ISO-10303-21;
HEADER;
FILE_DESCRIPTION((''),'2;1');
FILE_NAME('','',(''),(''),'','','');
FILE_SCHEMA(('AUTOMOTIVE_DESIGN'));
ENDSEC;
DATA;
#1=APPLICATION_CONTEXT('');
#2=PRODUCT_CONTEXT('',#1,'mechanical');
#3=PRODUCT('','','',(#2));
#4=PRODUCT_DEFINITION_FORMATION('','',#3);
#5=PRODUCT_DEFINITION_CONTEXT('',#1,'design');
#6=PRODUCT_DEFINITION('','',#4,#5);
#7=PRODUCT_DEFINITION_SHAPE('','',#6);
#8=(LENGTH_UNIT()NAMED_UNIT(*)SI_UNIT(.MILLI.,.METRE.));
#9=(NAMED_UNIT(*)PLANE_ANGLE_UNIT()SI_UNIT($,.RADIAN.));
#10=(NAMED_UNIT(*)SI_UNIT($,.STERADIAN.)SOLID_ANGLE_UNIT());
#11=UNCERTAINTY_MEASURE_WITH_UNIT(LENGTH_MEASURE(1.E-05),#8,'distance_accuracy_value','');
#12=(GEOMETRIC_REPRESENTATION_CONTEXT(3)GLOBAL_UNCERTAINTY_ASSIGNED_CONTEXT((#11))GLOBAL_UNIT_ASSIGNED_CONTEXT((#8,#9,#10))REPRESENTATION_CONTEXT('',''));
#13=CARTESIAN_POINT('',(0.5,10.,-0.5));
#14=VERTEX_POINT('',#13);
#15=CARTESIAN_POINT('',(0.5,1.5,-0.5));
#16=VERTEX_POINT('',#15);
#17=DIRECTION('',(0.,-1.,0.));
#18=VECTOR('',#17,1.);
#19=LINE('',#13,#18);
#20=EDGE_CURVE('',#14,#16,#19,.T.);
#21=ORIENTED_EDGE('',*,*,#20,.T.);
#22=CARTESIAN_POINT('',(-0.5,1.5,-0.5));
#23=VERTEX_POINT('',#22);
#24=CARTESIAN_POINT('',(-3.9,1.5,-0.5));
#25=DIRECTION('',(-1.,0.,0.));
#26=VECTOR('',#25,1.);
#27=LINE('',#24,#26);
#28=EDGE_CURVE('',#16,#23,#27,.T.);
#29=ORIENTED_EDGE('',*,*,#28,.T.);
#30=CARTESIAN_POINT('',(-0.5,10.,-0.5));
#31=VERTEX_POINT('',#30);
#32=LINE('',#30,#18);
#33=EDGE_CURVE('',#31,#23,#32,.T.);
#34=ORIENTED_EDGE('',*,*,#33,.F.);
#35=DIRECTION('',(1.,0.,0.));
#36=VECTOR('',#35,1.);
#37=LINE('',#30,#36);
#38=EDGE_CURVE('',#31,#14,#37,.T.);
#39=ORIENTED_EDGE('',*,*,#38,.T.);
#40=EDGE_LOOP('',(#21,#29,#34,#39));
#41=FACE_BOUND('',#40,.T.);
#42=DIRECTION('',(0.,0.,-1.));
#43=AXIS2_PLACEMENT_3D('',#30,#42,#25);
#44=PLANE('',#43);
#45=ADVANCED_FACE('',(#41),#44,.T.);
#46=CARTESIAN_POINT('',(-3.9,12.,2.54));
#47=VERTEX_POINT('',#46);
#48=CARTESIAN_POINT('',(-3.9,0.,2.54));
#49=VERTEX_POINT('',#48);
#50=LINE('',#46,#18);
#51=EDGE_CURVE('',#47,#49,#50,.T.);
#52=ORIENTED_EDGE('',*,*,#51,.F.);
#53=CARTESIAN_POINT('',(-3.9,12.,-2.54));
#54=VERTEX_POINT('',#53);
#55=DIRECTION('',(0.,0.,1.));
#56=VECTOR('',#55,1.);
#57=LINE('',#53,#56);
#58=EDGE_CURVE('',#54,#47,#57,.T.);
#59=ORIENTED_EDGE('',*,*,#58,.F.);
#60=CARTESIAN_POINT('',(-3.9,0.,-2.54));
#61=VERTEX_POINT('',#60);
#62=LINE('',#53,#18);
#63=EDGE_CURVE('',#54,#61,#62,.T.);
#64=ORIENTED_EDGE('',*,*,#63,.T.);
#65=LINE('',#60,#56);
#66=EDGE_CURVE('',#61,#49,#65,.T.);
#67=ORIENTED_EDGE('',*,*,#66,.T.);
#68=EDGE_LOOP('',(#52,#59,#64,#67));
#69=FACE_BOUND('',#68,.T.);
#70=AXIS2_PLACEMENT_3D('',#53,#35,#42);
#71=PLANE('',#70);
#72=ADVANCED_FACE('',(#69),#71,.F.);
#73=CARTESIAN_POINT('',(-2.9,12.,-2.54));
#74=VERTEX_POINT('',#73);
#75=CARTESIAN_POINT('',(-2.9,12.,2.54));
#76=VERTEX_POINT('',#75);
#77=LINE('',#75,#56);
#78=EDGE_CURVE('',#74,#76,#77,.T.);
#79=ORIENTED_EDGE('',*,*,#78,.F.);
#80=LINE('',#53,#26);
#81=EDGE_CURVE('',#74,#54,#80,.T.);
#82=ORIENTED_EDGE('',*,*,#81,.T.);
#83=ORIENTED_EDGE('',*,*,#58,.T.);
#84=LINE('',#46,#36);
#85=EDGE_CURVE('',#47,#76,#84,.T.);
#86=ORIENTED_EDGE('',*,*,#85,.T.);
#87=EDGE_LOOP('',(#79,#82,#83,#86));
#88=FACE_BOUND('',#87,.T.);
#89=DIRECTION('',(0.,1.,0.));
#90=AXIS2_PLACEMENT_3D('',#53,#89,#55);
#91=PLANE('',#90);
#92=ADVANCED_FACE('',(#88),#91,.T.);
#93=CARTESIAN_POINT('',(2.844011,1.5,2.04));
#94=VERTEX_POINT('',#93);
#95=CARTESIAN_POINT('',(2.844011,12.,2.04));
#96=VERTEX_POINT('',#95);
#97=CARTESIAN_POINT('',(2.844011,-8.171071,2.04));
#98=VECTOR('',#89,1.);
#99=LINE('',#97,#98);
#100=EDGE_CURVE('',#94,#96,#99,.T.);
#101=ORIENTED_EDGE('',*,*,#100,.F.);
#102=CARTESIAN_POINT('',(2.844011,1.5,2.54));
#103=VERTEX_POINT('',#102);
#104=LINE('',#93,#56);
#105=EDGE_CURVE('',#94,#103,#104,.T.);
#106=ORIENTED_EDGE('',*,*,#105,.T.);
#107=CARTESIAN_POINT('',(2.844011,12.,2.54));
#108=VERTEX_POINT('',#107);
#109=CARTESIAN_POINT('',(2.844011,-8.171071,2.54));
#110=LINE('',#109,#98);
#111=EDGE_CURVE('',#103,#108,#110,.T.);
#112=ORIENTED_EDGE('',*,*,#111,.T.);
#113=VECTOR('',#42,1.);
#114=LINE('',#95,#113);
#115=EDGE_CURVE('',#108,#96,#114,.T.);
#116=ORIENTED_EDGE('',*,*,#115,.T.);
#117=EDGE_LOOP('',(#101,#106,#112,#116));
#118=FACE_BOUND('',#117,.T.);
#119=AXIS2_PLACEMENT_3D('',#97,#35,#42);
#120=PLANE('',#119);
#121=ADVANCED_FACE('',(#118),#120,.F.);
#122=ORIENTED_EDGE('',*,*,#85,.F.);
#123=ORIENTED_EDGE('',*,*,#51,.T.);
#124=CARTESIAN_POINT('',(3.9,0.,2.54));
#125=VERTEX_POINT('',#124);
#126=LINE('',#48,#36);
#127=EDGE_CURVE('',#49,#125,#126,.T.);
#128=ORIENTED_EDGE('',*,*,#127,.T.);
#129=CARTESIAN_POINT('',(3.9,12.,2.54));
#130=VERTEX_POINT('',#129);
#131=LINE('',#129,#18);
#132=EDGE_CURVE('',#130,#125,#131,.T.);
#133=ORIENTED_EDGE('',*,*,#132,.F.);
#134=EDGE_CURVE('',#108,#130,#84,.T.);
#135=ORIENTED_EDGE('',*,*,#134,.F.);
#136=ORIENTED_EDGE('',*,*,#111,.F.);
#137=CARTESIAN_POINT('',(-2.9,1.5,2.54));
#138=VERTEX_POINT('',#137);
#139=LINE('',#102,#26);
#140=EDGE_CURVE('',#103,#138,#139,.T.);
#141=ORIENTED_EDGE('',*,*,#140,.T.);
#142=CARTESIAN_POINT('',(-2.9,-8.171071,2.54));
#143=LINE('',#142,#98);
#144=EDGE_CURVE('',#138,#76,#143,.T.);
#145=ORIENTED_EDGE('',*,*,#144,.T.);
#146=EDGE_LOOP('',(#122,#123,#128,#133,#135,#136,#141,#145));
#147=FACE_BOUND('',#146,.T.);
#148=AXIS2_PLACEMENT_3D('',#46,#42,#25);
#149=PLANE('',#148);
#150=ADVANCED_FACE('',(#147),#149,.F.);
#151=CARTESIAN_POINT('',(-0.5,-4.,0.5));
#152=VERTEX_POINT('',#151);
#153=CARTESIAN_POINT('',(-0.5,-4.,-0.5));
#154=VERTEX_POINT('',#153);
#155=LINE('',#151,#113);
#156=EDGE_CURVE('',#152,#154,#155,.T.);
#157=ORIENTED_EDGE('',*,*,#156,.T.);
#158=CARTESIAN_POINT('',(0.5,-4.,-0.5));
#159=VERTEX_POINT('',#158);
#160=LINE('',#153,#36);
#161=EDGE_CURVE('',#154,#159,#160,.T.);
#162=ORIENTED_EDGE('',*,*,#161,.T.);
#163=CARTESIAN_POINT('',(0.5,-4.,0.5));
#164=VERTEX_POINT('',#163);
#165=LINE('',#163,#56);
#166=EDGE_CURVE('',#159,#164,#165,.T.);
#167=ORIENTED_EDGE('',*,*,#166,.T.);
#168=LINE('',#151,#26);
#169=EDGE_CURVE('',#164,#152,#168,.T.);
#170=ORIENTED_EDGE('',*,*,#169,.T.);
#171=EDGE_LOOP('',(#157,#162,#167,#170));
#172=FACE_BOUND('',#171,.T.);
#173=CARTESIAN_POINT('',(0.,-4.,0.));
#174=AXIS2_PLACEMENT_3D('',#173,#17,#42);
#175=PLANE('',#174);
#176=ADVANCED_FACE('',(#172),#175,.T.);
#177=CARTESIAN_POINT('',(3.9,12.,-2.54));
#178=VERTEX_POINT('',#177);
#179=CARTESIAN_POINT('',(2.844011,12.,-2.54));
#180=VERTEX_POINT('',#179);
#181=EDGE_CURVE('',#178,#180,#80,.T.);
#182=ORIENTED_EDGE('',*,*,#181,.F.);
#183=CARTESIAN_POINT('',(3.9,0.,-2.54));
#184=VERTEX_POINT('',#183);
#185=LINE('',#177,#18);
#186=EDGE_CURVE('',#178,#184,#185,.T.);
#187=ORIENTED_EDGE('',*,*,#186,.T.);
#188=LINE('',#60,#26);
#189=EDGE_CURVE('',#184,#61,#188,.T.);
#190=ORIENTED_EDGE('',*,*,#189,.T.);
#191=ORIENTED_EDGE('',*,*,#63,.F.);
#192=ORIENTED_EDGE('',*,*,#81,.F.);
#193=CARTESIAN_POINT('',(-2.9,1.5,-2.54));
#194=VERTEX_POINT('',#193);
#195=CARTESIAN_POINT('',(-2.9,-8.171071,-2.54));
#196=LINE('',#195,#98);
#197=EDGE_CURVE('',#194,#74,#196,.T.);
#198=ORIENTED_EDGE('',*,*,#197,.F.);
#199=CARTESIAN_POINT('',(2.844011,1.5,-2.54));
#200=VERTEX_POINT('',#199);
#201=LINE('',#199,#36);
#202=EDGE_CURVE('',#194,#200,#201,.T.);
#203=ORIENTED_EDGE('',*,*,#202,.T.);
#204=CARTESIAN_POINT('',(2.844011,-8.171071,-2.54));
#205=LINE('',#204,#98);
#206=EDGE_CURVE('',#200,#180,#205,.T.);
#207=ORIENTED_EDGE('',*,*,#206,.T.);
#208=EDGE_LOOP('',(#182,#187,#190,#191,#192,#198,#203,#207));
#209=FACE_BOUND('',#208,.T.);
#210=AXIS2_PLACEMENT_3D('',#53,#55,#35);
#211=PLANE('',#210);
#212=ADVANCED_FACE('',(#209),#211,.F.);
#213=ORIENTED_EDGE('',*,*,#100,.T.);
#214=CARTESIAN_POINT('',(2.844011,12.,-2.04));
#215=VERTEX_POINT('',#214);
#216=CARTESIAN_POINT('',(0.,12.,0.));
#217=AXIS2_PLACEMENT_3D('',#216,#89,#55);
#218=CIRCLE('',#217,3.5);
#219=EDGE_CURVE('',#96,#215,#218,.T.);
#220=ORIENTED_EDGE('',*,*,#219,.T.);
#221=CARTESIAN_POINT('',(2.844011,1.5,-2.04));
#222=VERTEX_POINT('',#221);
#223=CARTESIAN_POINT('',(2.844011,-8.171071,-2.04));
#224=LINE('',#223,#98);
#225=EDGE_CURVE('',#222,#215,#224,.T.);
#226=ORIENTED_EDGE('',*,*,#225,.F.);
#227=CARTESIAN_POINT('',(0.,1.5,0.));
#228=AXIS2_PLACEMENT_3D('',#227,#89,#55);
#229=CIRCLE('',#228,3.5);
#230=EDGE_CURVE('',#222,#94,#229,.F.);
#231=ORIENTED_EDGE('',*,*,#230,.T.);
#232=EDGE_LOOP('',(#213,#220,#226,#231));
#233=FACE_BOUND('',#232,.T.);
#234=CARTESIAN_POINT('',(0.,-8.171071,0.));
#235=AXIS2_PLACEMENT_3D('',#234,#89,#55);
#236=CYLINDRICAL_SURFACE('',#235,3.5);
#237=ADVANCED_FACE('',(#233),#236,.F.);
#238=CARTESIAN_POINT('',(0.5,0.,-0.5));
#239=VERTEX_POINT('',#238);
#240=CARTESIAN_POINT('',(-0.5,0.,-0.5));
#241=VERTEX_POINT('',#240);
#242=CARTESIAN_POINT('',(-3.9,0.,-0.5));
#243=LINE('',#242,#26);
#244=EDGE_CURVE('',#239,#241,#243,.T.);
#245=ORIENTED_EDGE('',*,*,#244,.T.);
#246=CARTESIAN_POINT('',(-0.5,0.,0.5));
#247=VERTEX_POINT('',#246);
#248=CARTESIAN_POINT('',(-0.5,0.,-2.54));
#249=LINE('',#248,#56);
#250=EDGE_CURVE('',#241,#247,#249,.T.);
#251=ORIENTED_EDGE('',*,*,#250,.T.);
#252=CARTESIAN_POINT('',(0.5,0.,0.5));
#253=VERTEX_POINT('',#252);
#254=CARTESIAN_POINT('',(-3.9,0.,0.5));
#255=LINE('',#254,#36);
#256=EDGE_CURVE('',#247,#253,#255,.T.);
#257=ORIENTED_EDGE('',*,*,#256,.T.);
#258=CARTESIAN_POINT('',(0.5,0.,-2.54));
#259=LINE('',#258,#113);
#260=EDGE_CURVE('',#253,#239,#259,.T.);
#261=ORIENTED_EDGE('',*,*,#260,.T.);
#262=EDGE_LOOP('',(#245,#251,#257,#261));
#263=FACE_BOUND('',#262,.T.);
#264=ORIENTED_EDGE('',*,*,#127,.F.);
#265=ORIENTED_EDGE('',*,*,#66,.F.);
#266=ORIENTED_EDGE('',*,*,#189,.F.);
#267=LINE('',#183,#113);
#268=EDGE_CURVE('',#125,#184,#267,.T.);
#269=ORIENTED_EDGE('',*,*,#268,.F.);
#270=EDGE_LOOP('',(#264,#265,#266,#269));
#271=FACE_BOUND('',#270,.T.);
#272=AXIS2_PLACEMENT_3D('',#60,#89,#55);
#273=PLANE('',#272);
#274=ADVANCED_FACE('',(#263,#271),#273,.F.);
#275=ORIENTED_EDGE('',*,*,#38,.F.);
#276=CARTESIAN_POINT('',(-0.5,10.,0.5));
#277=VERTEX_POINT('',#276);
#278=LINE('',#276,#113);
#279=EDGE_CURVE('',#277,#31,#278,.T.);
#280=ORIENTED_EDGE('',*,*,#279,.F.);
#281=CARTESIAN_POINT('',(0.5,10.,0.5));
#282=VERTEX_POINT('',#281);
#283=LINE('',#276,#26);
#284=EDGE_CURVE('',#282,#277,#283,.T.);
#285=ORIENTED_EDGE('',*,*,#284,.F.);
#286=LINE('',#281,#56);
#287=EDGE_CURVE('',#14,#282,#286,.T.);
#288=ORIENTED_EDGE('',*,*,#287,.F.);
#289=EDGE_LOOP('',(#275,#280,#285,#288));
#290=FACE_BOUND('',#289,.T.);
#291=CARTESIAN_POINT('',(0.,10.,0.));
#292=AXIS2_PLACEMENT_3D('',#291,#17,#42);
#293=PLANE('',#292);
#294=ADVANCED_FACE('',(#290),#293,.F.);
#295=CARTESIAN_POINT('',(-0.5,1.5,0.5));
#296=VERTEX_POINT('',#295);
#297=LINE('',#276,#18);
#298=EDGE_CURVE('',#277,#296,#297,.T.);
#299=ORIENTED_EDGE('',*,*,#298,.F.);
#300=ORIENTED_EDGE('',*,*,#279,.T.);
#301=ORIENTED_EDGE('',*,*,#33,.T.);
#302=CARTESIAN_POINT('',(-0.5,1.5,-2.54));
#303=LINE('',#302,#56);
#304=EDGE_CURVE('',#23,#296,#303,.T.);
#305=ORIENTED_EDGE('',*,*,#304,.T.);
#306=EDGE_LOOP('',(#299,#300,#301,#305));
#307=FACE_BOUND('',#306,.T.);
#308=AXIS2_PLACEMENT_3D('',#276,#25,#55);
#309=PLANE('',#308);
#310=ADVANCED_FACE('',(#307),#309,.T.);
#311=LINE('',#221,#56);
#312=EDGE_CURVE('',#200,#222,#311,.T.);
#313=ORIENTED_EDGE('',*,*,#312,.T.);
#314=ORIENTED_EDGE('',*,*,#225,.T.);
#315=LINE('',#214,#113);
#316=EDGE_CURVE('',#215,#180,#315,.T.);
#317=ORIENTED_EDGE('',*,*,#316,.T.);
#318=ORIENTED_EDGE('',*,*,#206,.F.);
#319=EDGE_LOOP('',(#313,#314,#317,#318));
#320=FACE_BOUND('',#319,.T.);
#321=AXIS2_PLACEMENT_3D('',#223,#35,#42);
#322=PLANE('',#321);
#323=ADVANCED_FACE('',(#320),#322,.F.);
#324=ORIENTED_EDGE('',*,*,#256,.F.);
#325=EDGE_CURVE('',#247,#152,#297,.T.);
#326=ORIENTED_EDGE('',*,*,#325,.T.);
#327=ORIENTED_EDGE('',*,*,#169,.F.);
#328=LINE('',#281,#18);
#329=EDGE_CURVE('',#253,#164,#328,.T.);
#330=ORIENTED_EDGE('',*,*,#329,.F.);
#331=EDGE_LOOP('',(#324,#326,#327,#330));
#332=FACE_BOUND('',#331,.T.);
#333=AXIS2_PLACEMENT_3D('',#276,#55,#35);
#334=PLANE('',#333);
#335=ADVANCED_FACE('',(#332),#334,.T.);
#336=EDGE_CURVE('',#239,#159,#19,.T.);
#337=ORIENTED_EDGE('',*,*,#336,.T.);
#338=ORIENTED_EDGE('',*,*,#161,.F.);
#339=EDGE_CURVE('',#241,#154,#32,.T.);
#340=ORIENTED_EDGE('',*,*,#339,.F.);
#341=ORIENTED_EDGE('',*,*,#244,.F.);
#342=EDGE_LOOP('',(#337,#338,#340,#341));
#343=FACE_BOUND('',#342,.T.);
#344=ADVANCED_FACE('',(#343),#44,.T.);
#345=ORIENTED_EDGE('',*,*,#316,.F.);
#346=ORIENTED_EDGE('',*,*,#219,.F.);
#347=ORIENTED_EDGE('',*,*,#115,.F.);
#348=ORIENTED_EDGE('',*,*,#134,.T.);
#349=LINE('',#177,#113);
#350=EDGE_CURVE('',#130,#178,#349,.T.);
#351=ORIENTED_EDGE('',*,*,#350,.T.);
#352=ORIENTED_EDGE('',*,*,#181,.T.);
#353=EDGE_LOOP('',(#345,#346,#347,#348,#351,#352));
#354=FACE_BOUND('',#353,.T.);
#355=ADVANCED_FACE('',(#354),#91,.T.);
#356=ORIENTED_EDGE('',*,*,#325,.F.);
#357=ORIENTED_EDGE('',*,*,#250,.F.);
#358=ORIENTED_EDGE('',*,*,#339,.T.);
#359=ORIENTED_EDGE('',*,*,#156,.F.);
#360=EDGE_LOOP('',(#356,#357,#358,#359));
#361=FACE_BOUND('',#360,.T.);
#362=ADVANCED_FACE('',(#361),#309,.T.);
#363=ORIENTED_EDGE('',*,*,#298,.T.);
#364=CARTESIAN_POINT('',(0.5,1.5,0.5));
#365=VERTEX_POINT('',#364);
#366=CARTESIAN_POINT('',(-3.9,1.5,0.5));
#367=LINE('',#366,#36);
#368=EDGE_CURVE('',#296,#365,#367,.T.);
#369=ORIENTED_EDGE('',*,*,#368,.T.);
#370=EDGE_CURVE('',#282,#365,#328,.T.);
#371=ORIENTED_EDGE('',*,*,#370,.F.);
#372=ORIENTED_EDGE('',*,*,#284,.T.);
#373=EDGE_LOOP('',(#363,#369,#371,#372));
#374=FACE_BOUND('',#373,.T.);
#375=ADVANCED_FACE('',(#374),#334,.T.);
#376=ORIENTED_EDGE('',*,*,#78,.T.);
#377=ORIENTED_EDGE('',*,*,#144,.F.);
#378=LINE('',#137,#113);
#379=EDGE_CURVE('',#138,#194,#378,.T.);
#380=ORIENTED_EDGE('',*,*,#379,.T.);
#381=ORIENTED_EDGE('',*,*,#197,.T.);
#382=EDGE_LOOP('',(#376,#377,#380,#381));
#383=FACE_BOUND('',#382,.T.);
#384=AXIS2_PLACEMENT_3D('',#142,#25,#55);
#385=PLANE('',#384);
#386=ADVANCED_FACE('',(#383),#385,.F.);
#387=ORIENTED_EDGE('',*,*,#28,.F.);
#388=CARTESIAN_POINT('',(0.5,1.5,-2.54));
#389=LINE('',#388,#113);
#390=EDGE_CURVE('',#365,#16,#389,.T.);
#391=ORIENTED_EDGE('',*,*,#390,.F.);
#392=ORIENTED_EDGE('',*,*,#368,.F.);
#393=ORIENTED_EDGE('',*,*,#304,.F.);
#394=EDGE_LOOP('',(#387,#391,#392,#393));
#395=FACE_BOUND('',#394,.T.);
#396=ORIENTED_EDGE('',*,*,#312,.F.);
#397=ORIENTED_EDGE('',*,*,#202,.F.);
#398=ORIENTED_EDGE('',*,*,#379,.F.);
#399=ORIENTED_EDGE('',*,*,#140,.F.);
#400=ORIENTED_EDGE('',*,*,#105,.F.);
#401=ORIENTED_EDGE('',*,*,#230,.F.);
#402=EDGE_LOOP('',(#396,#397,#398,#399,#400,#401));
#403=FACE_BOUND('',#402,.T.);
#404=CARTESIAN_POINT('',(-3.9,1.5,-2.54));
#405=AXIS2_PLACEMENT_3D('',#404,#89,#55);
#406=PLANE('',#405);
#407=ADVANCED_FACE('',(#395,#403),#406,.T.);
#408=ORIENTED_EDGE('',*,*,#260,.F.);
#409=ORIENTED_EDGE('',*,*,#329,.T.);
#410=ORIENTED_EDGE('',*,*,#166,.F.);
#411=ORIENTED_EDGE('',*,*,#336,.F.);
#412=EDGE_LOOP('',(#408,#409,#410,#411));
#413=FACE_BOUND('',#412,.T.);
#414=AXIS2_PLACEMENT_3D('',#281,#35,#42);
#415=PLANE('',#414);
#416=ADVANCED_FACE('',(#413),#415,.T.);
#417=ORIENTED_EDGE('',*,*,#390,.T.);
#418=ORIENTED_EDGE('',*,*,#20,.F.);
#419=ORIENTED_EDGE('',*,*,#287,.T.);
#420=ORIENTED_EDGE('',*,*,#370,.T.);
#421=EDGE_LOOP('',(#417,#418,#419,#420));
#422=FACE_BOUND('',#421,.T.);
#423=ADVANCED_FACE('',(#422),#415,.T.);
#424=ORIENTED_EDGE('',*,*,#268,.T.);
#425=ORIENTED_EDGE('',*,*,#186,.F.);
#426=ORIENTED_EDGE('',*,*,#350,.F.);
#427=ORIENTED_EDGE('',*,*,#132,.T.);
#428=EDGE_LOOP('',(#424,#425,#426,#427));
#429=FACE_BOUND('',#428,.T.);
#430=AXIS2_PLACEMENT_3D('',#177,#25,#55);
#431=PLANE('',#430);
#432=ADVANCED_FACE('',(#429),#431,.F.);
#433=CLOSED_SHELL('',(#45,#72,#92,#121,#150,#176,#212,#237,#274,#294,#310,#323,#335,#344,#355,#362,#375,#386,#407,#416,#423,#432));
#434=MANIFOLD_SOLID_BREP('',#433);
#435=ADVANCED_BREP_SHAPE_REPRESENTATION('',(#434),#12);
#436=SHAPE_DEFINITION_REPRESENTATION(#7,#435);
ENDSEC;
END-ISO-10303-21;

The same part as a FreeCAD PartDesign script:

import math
import FreeCAD as App
import Part
import Sketcher

V = App.Vector
Q = App.Units.Quantity

doc = App.newDocument("Part")
body = doc.addObject("PartDesign::Body", "Body")

# Sketch on XZ plane
sketch1 = body.newObject("Sketcher::SketchObject", "Sketch")
sketch1.AttachmentSupport = (doc.getObject("XZ_Plane"), [""])
sketch1.MapMode = "FlatFace"
sketch1.addGeometry([
    Part.LineSegment(V(-3.9, -2.54, 0), V(-3.9, 2.54, 0)),
    Part.LineSegment(V(-3.9, 2.54, 0), V(3.9, 2.54, 0)),
    Part.LineSegment(V(3.9, 2.54, 0), V(3.9, -2.54, 0)),
    Part.LineSegment(V(3.9, -2.54, 0), V(-3.9, -2.54, 0)),
], False)
sketch1.addConstraint([
    Sketcher.Constraint("Coincident", 0, 2, 1, 1),
    Sketcher.Constraint("Coincident", 1, 2, 2, 1),
    Sketcher.Constraint("Coincident", 2, 2, 3, 1),
    Sketcher.Constraint("Coincident", 3, 2, 0, 1),
    Sketcher.Constraint("Vertical", 0),
    Sketcher.Constraint("Horizontal", 1),
    Sketcher.Constraint("Vertical", 2),
    Sketcher.Constraint("Horizontal", 3),
    Sketcher.Constraint("Symmetric", 0, 2, 2, 2, -1, 1),
    Sketcher.Constraint("DistanceX", 1, 1, 1, 2, Q("7.8 mm")),
    Sketcher.Constraint("DistanceY", 0, 1, 0, 2, Q("5.08 mm")),
])
pad1 = body.newObject("PartDesign::Pad", "Pad")
pad1.Profile = sketch1
pad1.Length = 12
pad1.Reversed = True

# Sketch on XZ plane
sketch2 = body.newObject("Sketcher::SketchObject", "Sketch001")
sketch2.AttachmentSupport = (doc.getObject("XZ_Plane"), [""])
sketch2.MapMode = "FlatFace"
sketch2.AttachmentOffset = App.Placement(V(0, 0, -12), App.Rotation())
sketch2.addGeometry([
    Part.LineSegment(V(2.844011, 2.54, 0), V(2.844011, 2.04, 0)),  # 0
    Part.ArcOfCircle(Part.Circle(V(0, 0, 0), V(0, 0, 1), 3.5), math.radians(-35.651751), math.radians(35.651751)),  # 1
    Part.LineSegment(V(2.844011, -2.04, 0), V(2.844011, -2.54, 0)),  # 2
    Part.LineSegment(V(2.844011, -2.54, 0), V(-2.9, -2.54, 0)),  # 3
    Part.LineSegment(V(-2.9, -2.54, 0), V(-2.9, 2.54, 0)),  # 4
    Part.LineSegment(V(-2.9, 2.54, 0), V(2.844011, 2.54, 0)),  # 5
], False)
sketch2.addConstraint([
    Sketcher.Constraint("Coincident", 0, 2, 1, 2),
    Sketcher.Constraint("Coincident", 1, 1, 2, 1),
    Sketcher.Constraint("Coincident", 2, 2, 3, 1),
    Sketcher.Constraint("Coincident", 3, 2, 4, 1),
    Sketcher.Constraint("Coincident", 4, 2, 5, 1),
    Sketcher.Constraint("Coincident", 5, 2, 0, 1),
    Sketcher.Constraint("Vertical", 0),
    Sketcher.Constraint("Vertical", 2),
    Sketcher.Constraint("Horizontal", 3),
    Sketcher.Constraint("Vertical", 4),
    Sketcher.Constraint("Horizontal", 5),
    Sketcher.Constraint("Coincident", 1, 3, -1, 1),
    Sketcher.Constraint("Symmetric", 2, 2, 5, 2, -1),
    Sketcher.Constraint("Radius", 1, Q("3.5 mm")),
    Sketcher.Constraint("DistanceY", 0, 2, 0, 1, Q("0.5 mm")),
    Sketcher.Constraint("DistanceY", 4, 1, 4, 2, Q("5.08 mm")),
    Sketcher.Constraint("DistanceX", 3, 2, -1, 1, Q("2.9 mm")),
])
pocket1 = body.newObject("PartDesign::Pocket", "Pocket")
pocket1.Profile = sketch2
pocket1.Length = 10.5
pocket1.Reversed = True

# Sketch on XZ plane
sketch3 = body.newObject("Sketcher::SketchObject", "Sketch002")
sketch3.AttachmentSupport = (doc.getObject("XZ_Plane"), [""])
sketch3.MapMode = "FlatFace"
sketch3.addGeometry([
    Part.LineSegment(V(-0.5, 0.5, 0), V(-0.5, -0.5, 0)),
    Part.LineSegment(V(-0.5, -0.5, 0), V(0.5, -0.5, 0)),
    Part.LineSegment(V(0.5, -0.5, 0), V(0.5, 0.5, 0)),
    Part.LineSegment(V(0.5, 0.5, 0), V(-0.5, 0.5, 0)),
], False)
sketch3.addConstraint([
    Sketcher.Constraint("Coincident", 0, 2, 1, 1),
    Sketcher.Constraint("Coincident", 1, 2, 2, 1),
    Sketcher.Constraint("Coincident", 2, 2, 3, 1),
    Sketcher.Constraint("Coincident", 3, 2, 0, 1),
    Sketcher.Constraint("Vertical", 0),
    Sketcher.Constraint("Horizontal", 1),
    Sketcher.Constraint("Vertical", 2),
    Sketcher.Constraint("Horizontal", 3),
    Sketcher.Constraint("Symmetric", 0, 2, 2, 2, -1, 1),
    Sketcher.Constraint("Equal", 3, 0),
    Sketcher.Constraint("DistanceX", 1, 1, 1, 2, Q("1 mm")),
])
pad2 = body.newObject("PartDesign::Pad", "Pad001")
pad2.Profile = sketch3
pad2.Type = "TwoLengths"
pad2.Length = 4
pad2.Length2 = 10

doc.recompute()
